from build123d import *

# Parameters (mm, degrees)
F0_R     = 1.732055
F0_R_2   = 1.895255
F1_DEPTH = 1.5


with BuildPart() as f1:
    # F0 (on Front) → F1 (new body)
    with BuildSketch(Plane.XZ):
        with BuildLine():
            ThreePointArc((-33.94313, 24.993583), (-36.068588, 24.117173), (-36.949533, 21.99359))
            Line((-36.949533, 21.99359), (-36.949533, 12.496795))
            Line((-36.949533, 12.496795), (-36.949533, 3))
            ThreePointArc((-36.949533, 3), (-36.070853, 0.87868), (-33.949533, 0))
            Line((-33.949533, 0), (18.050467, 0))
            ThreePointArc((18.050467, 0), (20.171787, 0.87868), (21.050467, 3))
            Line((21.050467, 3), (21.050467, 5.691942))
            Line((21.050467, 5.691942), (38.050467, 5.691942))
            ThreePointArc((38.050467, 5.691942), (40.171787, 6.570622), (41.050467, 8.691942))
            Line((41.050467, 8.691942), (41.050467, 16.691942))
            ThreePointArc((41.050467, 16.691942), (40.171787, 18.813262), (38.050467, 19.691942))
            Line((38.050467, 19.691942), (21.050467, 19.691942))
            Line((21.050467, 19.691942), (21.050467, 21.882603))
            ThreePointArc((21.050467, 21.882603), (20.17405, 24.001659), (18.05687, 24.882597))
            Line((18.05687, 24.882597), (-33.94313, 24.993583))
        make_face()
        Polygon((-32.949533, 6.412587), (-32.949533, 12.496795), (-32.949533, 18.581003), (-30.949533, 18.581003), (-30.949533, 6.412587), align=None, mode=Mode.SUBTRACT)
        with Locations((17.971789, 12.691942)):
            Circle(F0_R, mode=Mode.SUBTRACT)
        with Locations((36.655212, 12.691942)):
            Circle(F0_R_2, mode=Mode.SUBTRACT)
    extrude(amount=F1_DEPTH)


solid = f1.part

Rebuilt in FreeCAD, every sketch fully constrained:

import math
import FreeCAD as App
import Part
import Sketcher
from FreeCAD import Vector
Q = App.Units.Quantity


def add_polygon(sketch, points):
    """Adds a closed chain of lines whose ends are joined by coincident constraints."""
    first, n = sketch.GeometryCount, len(points)
    for a, b in zip(points, points[1:] + points[:1]):
        sketch.addGeometry(Part.LineSegment(App.Vector(*a, 0), App.Vector(*b, 0)), False)
    for i in range(n):
        sketch.addConstraint(Sketcher.Constraint("Coincident", first + i, 2, first + (i + 1) % n, 1))

doc = App.newDocument("Part")
body = doc.addObject("PartDesign::Body", "Body")

sketch1 = body.newObject("Sketcher::SketchObject", "Sketch")
sketch1.AttachmentSupport = (doc.getObject("XZ_Plane"), [""])
sketch1.MapMode = "FlatFace"
sketch1.addGeometry(Part.ArcOfCircle(Part.Circle(Vector(-33.9, 22, 0), Vector(0, 0, 1), 3), math.radians(90), math.radians(180)), False)
sketch1.addGeometry(Part.LineSegment(Vector(-36.9, 22, 0), Vector(-36.9, 3, 0)), False)
sketch1.addGeometry(Part.ArcOfCircle(Part.Circle(Vector(-33.9, 3, 0), Vector(0, 0, 1), 3), math.radians(-180), math.radians(-90)), False)
sketch1.addGeometry(Part.LineSegment(Vector(-33.9, 0, 0), Vector(18.1, 0, 0)), False)
sketch1.addGeometry(Part.ArcOfCircle(Part.Circle(Vector(18.1, 3, 0), Vector(0, 0, 1), 3), math.radians(-90), math.radians(0)), False)
sketch1.addGeometry(Part.LineSegment(Vector(21.1, 3, 0), Vector(21.1, 5.7, 0)), False)
sketch1.addGeometry(Part.LineSegment(Vector(21.1, 5.7, 0), Vector(38.1, 5.7, 0)), False)
sketch1.addGeometry(Part.ArcOfCircle(Part.Circle(Vector(38.1, 8.7, 0), Vector(0, 0, 1), 3), math.radians(-90), math.radians(0)), False)
sketch1.addGeometry(Part.LineSegment(Vector(41.1, 8.7, 0), Vector(41.1, 16.7, 0)), False)
sketch1.addGeometry(Part.ArcOfCircle(Part.Circle(Vector(38.1, 16.7, 0), Vector(0, 0, 1), 3), math.radians(0), math.radians(90)), False)
sketch1.addGeometry(Part.LineSegment(Vector(38.1, 19.7, 0), Vector(21.1, 19.7, 0)), False)
sketch1.addGeometry(Part.LineSegment(Vector(21.1, 19.7, 0), Vector(21.1, 21.9, 0)), False)
sketch1.addGeometry(Part.ArcOfCircle(Part.Circle(Vector(18.1, 21.9, 0), Vector(0, 0, 1), 3), math.radians(0), math.radians(90)), False)
sketch1.addGeometry(Part.LineSegment(Vector(18.1, 24.9, 0), Vector(-33.9, 25, 0)), False)
add_polygon(sketch1, [(-30.9, 6.4), (-32.9, 6.4), (-32.9, 18.6), (-30.9, 18.6)])
sketch1.addGeometry(Part.Circle(Vector(18, 12.7, 0), Vector(0, 0, 1), 1.7), False)
sketch1.addGeometry(Part.Circle(Vector(36.7, 12.7, 0), Vector(0, 0, 1), 1.9), False)
sketch1.addConstraint([
    Sketcher.Constraint("Tangent", 0, 2, 1, 1),
    Sketcher.Constraint("Tangent", 1, 2, 2, 1),
    Sketcher.Constraint("Tangent", 2, 2, 3, 1),
    Sketcher.Constraint("Tangent", 3, 2, 4, 1),
    Sketcher.Constraint("Tangent", 4, 2, 5, 1),
    Sketcher.Constraint("Coincident", 5, 2, 6, 1),
    Sketcher.Constraint("Tangent", 6, 2, 7, 1),
    Sketcher.Constraint("Tangent", 7, 2, 8, 1),
    Sketcher.Constraint("Tangent", 8, 2, 9, 1),
    Sketcher.Constraint("Tangent", 9, 2, 10, 1),
    Sketcher.Constraint("Coincident", 10, 2, 11, 1),
    Sketcher.Constraint("Tangent", 11, 2, 12, 1),
    Sketcher.Constraint("Tangent", 12, 2, 13, 1),
    Sketcher.Constraint("Tangent", 13, 2, 0, 1),
    Sketcher.Constraint("Vertical", 1),
    Sketcher.Constraint("Horizontal", 3),
    Sketcher.Constraint("Vertical", 5),
    Sketcher.Constraint("Horizontal", 6),
    Sketcher.Constraint("Vertical", 8),
    Sketcher.Constraint("Horizontal", 10),
    Sketcher.Constraint("Vertical", 11),
    Sketcher.Constraint("Horizontal", 14),
    Sketcher.Constraint("Vertical", 15),
    Sketcher.Constraint("Horizontal", 16),
    Sketcher.Constraint("Vertical", 17),
    Sketcher.Constraint("Equal", 0, 2),
    Sketcher.Constraint("Equal", 2, 4),
    Sketcher.Constraint("Equal", 4, 7),
    Sketcher.Constraint("Equal", 7, 9),
    Sketcher.Constraint("Equal", 9, 12),
    Sketcher.Constraint("PointOnObject", 2, 2, -1),
    Sketcher.Constraint("Horizontal", 18, 3, 19, 3),
    Sketcher.Constraint("Vertical", 4, 3, 12, 3),
    Sketcher.Constraint("Radius", 0, Q("3 mm")),
    Sketcher.Constraint("DistanceX", 3, 1, 3, 2, Q("52 mm")),
    Sketcher.Constraint("DistanceX", 6, 1, 6, 2, Q("17 mm")),
    Sketcher.Constraint("DistanceX", 14, 2, 14, 1, Q("2 mm")),
    Sketcher.Constraint("DistanceY", 8, 1, 8, 2, Q("8 mm")),
    Sketcher.Constraint("DistanceY", 7, 3, 18, 3, Q("3.999999 mm")),
    Sketcher.Constraint("DistanceX", 2, 3, 14, 2, Q("0.999999 mm")),
    Sketcher.Constraint("Diameter", 18, Q("3.46411 mm")),
    Sketcher.Constraint("Diameter", 19, Q("3.79051 mm")),
    Sketcher.Constraint("DistanceY", 2, 3, 15, 2, Q("15.581002 mm")),
    Sketcher.Constraint("DistanceY", 1, 2, 1, 1, Q("18.99359 mm")),
    Sketcher.Constraint("DistanceY", 5, 1, 5, 2, Q("2.691942 mm")),
    Sketcher.Constraint("DistanceY", 11, 1, 11, 2, Q("2.190661 mm")),
    Sketcher.Constraint("DistanceY", 15, 1, 15, 2, Q("12.168416 mm")),
    Sketcher.Constraint("DistanceX", 2, 3, -1, 1, Q("33.949532 mm")),
    Sketcher.Constraint("DistanceX", -1, 1, 18, 3, Q("17.971789 mm")),
    Sketcher.Constraint("DistanceX", -1, 1, 19, 3, Q("36.655212 mm")),
])
pad1 = body.newObject("PartDesign::Pad", "Pad")
pad1.Profile = sketch1
pad1.Length = 1.5

doc.recompute()
